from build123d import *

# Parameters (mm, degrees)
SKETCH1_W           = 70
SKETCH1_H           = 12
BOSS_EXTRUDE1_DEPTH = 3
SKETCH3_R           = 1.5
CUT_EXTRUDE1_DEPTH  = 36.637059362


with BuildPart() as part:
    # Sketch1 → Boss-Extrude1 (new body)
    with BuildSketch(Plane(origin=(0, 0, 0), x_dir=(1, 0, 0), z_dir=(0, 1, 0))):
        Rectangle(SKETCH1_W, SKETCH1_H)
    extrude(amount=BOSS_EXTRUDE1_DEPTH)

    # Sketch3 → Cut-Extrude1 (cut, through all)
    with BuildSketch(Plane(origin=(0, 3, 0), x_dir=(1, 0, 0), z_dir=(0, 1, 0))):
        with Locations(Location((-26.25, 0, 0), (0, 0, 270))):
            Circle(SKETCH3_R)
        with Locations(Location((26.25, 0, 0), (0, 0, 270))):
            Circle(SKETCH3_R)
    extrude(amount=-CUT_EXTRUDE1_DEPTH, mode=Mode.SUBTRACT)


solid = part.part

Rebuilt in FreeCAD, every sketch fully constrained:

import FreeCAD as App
import Part
import Sketcher


def add_polygon(sketch, points):
    """Adds a closed chain of lines whose ends are joined by coincident constraints."""
    first, n = sketch.GeometryCount, len(points)
    for a, b in zip(points, points[1:] + points[:1]):
        sketch.addGeometry(Part.LineSegment(App.Vector(*a, 0), App.Vector(*b, 0)), False)
    for i in range(n):
        sketch.addConstraint(Sketcher.Constraint("Coincident", first + i, 2, first + (i + 1) % n, 1))

doc = App.newDocument("Part")
body = doc.addObject("PartDesign::Body", "Body")

sketch1 = body.newObject("Sketcher::SketchObject", "Sketch")
sketch1.AttachmentSupport = (doc.getObject("XZ_Plane"), [""])
sketch1.MapMode = "FlatFace"
add_polygon(sketch1, [(-35, -6), (-35, 6), (35, 6), (35, -6)])
sketch1.addConstraint([
    Sketcher.Constraint("Vertical", 0),
    Sketcher.Constraint("Horizontal", 1),
    Sketcher.Constraint("Vertical", 2),
    Sketcher.Constraint("Horizontal", 3),
    Sketcher.Constraint("Symmetric", 0, 2, 2, 2, -1, 1),
    Sketcher.Constraint("DistanceX", 1, 1, 1, 2, 70.0),
    Sketcher.Constraint("DistanceY", 0, 1, 0, 2, 12.0),
])
pad1 = body.newObject("PartDesign::Pad", "Pad")
pad1.Profile = sketch1
pad1.Length = 3
pad1.Reversed = True

sketch2 = body.newObject("Sketcher::SketchObject", "Sketch001")
sketch2.AttachmentSupport = (doc.getObject("XZ_Plane"), [""])
sketch2.MapMode = "FlatFace"
sketch2.AttachmentOffset = App.Placement(App.Vector(0, 0, -3), App.Rotation())
sketch2.addGeometry([
    Part.Circle(App.Vector(-26.2, 0, 0), App.Vector(0, 0, 1), 1.5),
    Part.Circle(App.Vector(26.2, 0, 0), App.Vector(0, 0, 1), 1.5),
], False)
sketch2.addConstraint([
    Sketcher.Constraint("Equal", 0, 1),
    Sketcher.Constraint("Symmetric", 0, 3, 1, 3, -1, 1),
    Sketcher.Constraint("PointOnObject", 0, 3, -1),
    Sketcher.Constraint("Diameter", 0, 3.0),
    Sketcher.Constraint("DistanceX", 0, 3, 1, 3, 52.5),
])
pocket1 = body.newObject("PartDesign::Pocket", "Pocket")
pocket1.Profile = sketch2
pocket1.Type = "ThroughAll"
pocket1.Reversed = True

doc.recompute()
